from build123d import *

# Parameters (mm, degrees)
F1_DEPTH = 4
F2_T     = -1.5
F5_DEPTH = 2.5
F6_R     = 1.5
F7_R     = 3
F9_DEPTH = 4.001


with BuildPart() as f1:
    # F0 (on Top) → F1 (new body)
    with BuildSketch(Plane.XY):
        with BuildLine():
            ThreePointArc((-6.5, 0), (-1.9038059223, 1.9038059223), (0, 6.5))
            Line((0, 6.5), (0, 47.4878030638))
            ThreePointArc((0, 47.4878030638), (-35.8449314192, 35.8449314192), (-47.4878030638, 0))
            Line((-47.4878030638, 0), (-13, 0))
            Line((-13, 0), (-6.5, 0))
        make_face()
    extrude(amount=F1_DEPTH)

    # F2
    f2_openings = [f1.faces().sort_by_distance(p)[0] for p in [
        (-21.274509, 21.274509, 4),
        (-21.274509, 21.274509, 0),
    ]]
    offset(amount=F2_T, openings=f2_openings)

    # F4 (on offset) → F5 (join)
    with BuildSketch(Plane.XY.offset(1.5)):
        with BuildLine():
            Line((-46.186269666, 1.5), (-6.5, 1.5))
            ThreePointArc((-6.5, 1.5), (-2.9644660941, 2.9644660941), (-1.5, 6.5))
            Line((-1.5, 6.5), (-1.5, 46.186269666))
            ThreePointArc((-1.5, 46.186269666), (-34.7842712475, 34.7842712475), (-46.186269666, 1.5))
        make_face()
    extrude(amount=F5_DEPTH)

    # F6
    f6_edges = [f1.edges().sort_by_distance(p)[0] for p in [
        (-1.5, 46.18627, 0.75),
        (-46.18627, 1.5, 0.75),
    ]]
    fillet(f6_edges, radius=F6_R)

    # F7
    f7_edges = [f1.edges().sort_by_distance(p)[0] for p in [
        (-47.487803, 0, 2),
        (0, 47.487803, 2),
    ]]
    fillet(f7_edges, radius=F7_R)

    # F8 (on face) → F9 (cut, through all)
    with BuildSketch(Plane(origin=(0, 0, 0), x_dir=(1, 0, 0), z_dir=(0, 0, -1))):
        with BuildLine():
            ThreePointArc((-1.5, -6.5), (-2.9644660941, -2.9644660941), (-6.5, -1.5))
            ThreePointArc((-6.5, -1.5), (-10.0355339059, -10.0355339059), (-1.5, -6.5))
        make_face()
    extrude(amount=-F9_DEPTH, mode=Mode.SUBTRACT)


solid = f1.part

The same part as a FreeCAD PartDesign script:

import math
import FreeCAD as App
import Part
import Sketcher
Q = App.Units.Quantity


def edges_at(feature, points):
    """Names of the edges that pass closest to the given points."""
    edges = feature.Shape.Edges
    near = lambda p: min(range(len(edges)), key=lambda i: edges[i].distToShape(Part.Vertex(*p))[0])
    return sorted({f"Edge{near(p) + 1}" for p in points})


def faces_at(feature, points):
    """Names of the faces that lie closest to the given points."""
    faces = feature.Shape.Faces
    near = lambda p: min(range(len(faces)), key=lambda i: faces[i].distToShape(Part.Vertex(*p))[0])
    return sorted({f"Face{near(p) + 1}" for p in points})

doc = App.newDocument("Part")
body = doc.addObject("PartDesign::Body", "Body")

# Sketch on XY plane
sketch1 = body.newObject("Sketcher::SketchObject", "Sketch")
sketch1.AttachmentSupport = (doc.getObject("XY_Plane"), [""])
sketch1.MapMode = "FlatFace"
sketch1.addGeometry(Part.ArcOfCircle(Part.Circle(App.Vector(-6, 6, 0), App.Vector(0, 0, 1), 6), math.radians(-90), math.radians(0)), False)
sketch1.addGeometry(Part.LineSegment(App.Vector(0, 6, 0), App.Vector(0, 47, 0)), False)
sketch1.addGeometry(Part.ArcOfCircle(Part.Circle(App.Vector(-6, 6, 0), App.Vector(0, 0, 1), 42), math.radians(81), math.radians(189)), False)
sketch1.addGeometry(Part.LineSegment(App.Vector(-47, 0, 0), App.Vector(-6, 0, 0)), False)
sketch1.addConstraint(Sketcher.Constraint("Tangent", 0, 2, 1, 1))
sketch1.addConstraint(Sketcher.Constraint("Coincident", 1, 2, 2, 1))
sketch1.addConstraint(Sketcher.Constraint("Coincident", 2, 2, 3, 1))
sketch1.addConstraint(Sketcher.Constraint("Tangent", 3, 2, 0, 1))
sketch1.addConstraint(Sketcher.Constraint("Vertical", 1))
sketch1.addConstraint(Sketcher.Constraint("Horizontal", 3))
sketch1.addConstraint(Sketcher.Constraint("Coincident", 2, 3, 0, 3))
sketch1.addConstraint(Sketcher.Constraint("PointOnObject", 0, 2, -2))
sketch1.addConstraint(Sketcher.Constraint("PointOnObject", 2, 2, -1))
sketch1.addConstraint(Sketcher.Constraint("Radius", 0, Q("6.5 mm")))
sketch1.addConstraint(Sketcher.Constraint("Radius", 2, Q("41.5 mm")))
pad1 = body.newObject("PartDesign::Pad", "Pad")
pad1.Profile = sketch1
pad1.Length = 4
doc.recompute()

thickness = body.newObject("PartDesign::Thickness", "Thickness")
thickness.Base = (pad1, faces_at(pad1, [(-24, 24, 4), (-24, 24, 0)]))
thickness.Value = 1.5
thickness.Reversed = True
thickness.Join = "Arc"

# Sketch on XY plane
sketch2 = body.newObject("Sketcher::SketchObject", "Sketch001")
sketch2.AttachmentSupport = (doc.getObject("XY_Plane"), [""])
sketch2.MapMode = "FlatFace"
sketch2.AttachmentOffset = App.Placement(App.Vector(0, 0, 1.5), App.Rotation())
sketch2.addGeometry(Part.LineSegment(App.Vector(-46, 2, 0), App.Vector(-6, 2, 0)), False)
sketch2.addGeometry(Part.ArcOfCircle(Part.Circle(App.Vector(-6, 6, 0), App.Vector(0, 0, 1), 5), math.radians(-90), math.radians(0)), False)
sketch2.addGeometry(Part.LineSegment(App.Vector(-2, 6, 0), App.Vector(-2, 46, 0)), False)
sketch2.addGeometry(Part.ArcOfCircle(Part.Circle(App.Vector(-6, 6, 0), App.Vector(0, 0, 1), 40), math.radians(83), math.radians(187)), False)
sketch2.addConstraint(Sketcher.Constraint("Tangent", 0, 2, 1, 1))
sketch2.addConstraint(Sketcher.Constraint("Tangent", 1, 2, 2, 1))
sketch2.addConstraint(Sketcher.Constraint("Coincident", 2, 2, 3, 1))
sketch2.addConstraint(Sketcher.Constraint("Coincident", 3, 2, 0, 1))
sketch2.addConstraint(Sketcher.Constraint("Horizontal", 0))
sketch2.addConstraint(Sketcher.Constraint("Vertical", 2))
sketch2.addConstraint(Sketcher.Constraint("Coincident", 3, 3, 1, 3))
sketch2.addConstraint(Sketcher.Constraint("Radius", 1, Q("5 mm")))
sketch2.addConstraint(Sketcher.Constraint("Radius", 3, Q("40 mm")))
sketch2.addConstraint(Sketcher.Constraint("DistanceX", 1, 3, -1, 1, Q("6.5 mm")))
sketch2.addConstraint(Sketcher.Constraint("DistanceY", -1, 1, 1, 3, Q("6.5 mm")))
pad2 = body.newObject("PartDesign::Pad", "Pad001")
pad2.Profile = sketch2
pad2.Length = 2.5
doc.recompute()

fillet = body.newObject("PartDesign::Fillet", "Fillet")
fillet.Base = (pad2, edges_at(pad2, [(-1.5, 46.186, 0.75), (-46.186, 1.5, 0.75)]))
fillet.Radius = 1.5
doc.recompute()

fillet2 = body.newObject("PartDesign::Fillet", "Fillet001")
fillet2.Base = (fillet, edges_at(fillet, [(-47.488, 0, 2), (0, 47.488, 2)]))
fillet2.Radius = 3

# Sketch on XY plane
sketch3 = body.newObject("Sketcher::SketchObject", "Sketch002")
sketch3.AttachmentSupport = (doc.getObject("XY_Plane"), [""])
sketch3.MapMode = "FlatFace"
sketch3.addGeometry(Part.ArcOfCircle(Part.Circle(App.Vector(-6, 6, 0), App.Vector(0, 0, 1), 5), math.radians(-90), math.radians(0)), False)
sketch3.addGeometry(Part.ArcOfCircle(Part.Circle(App.Vector(-6, 6, 0), App.Vector(0, 0, 1), 5), math.radians(0), math.radians(270)), False)
sketch3.addConstraint(Sketcher.Constraint("Tangent", 0, 1, 1, 2))
sketch3.addConstraint(Sketcher.Constraint("Coincident", 1, 1, 0, 2))
sketch3.addConstraint(Sketcher.Constraint("Horizontal", 0, 3, 1, 1))
sketch3.addConstraint(Sketcher.Constraint("Vertical", 1, 3, 0, 1))
sketch3.addConstraint(Sketcher.Constraint("Radius", 0, Q("5 mm")))
sketch3.addConstraint(Sketcher.Constraint("DistanceX", 0, 3, -1, 1, Q("6.5 mm")))
sketch3.addConstraint(Sketcher.Constraint("DistanceY", -1, 1, 0, 3, Q("6.5 mm")))
pocket1 = body.newObject("PartDesign::Pocket", "Pocket")
pocket1.Profile = sketch3
pocket1.Type = "ThroughAll"
pocket1.Reversed = True

doc.recompute()
